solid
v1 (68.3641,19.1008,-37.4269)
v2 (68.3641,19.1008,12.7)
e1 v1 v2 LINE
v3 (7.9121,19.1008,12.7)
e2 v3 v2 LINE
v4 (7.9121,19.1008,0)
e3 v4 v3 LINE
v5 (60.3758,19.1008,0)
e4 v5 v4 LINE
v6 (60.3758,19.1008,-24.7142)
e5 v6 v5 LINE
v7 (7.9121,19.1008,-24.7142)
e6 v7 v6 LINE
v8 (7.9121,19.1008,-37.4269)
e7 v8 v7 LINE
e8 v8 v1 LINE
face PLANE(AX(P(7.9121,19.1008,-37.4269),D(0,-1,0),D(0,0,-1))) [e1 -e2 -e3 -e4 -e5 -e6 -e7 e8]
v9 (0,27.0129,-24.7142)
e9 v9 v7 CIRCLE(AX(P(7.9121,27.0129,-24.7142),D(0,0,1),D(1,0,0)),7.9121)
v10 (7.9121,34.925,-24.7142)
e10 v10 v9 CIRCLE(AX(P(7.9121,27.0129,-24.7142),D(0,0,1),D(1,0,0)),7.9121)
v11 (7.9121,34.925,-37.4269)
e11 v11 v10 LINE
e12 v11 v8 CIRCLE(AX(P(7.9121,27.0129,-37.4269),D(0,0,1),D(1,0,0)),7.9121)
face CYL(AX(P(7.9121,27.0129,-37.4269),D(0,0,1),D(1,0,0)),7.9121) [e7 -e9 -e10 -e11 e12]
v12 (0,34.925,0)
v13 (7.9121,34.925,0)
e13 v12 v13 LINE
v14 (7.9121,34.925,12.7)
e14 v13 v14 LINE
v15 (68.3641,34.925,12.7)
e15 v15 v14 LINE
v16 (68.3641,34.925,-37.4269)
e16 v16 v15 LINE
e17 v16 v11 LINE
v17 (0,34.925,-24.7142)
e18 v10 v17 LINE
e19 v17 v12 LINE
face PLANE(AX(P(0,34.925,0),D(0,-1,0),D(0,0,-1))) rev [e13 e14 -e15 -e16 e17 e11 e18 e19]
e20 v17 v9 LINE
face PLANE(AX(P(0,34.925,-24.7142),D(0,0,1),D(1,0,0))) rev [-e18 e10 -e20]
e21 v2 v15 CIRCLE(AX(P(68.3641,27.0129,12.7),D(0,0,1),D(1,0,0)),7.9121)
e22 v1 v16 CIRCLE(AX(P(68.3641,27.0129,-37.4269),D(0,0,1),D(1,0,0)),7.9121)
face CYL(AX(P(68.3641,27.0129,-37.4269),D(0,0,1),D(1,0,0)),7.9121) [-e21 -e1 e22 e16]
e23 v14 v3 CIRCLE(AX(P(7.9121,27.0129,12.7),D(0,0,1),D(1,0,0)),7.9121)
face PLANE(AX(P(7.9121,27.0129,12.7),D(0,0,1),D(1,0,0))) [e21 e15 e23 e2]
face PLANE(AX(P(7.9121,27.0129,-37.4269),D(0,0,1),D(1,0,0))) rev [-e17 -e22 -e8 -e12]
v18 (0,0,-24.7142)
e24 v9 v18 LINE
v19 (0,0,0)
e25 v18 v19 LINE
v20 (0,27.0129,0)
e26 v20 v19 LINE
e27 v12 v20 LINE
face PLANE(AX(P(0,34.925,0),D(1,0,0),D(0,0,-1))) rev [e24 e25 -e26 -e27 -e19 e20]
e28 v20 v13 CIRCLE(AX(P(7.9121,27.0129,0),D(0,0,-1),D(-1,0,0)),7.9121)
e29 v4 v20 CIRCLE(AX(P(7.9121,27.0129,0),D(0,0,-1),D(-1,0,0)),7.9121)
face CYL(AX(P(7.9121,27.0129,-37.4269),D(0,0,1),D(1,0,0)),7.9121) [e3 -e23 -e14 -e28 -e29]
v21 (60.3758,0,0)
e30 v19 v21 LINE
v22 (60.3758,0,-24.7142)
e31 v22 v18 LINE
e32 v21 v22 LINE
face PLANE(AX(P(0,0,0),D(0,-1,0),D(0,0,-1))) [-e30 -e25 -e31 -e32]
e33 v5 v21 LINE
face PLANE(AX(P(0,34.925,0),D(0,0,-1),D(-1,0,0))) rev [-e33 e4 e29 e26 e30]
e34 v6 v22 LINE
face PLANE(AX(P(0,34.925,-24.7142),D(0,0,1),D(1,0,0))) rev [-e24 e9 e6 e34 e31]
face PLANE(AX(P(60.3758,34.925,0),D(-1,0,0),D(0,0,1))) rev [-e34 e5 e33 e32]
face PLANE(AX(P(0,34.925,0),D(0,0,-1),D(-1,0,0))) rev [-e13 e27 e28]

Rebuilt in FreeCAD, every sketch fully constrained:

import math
import FreeCAD as App
import Part
import Sketcher
from FreeCAD import Vector
Q = App.Units.Quantity


def add_polygon(sketch, points):
    """Adds a closed chain of lines whose ends are joined by coincident constraints."""
    first, n = sketch.GeometryCount, len(points)
    for a, b in zip(points, points[1:] + points[:1]):
        sketch.addGeometry(Part.LineSegment(App.Vector(*a, 0), App.Vector(*b, 0)), False)
    for i in range(n):
        sketch.addConstraint(Sketcher.Constraint("Coincident", first + i, 2, first + (i + 1) % n, 1))

doc = App.newDocument("Part")
params = doc.addObject("Spreadsheet::Sheet", "Params")
for row, (alias, value) in enumerate([
    ("sketch1_width", "2.377 in"),
    ("sketch1_height", "0.973 in"),
    ("pad1_length", "1.375 in"),
    ("sketch2_width", "2.38 in"),
    ("pad2_length", "0.5 in"),
    ("pad2_length2", "1.4735 in"),
], start=1):
    params.set(f"A{row}", alias)
    params.set(f"B{row}", "=" + value)
    params.setAlias(f"B{row}", alias)

body = doc.addObject("PartDesign::Body", "Body")

# Sketch on XZ plane
sketch1 = body.newObject("Sketcher::SketchObject", "Sketch")
sketch1.AttachmentSupport = (doc.getObject("XZ_Plane"), [""])
sketch1.MapMode = "FlatFace"
add_polygon(sketch1, [(0, -24.7142), (0, 0), (60.3758, 0), (60.3758, -24.7142)])  # lines 0-3
sketch1.addConstraint(Sketcher.Constraint("Vertical", 0))
sketch1.addConstraint(Sketcher.Constraint("Horizontal", 1))
sketch1.addConstraint(Sketcher.Constraint("Vertical", 2))
sketch1.addConstraint(Sketcher.Constraint("Horizontal", 3))
sketch1.addConstraint(Sketcher.Constraint("Coincident", 0, 2, -1, 1))
sketch1.addConstraint(Sketcher.Constraint("DistanceX", 1, 1, 1, 2, Q("2.377 in")))
sketch1.addConstraint(Sketcher.Constraint("DistanceY", 0, 1, 0, 2, Q("0.973 in")))
sketch1.setExpression("Constraints[9]", "Params.sketch1_width")
sketch1.setExpression("Constraints[10]", "Params.sketch1_height")
pad1 = body.newObject("PartDesign::Pad", "Pad")
pad1.Profile = sketch1
pad1.setExpression("Length", "Params.pad1_length")
pad1.Reversed = True

# Sketch on XY plane
sketch2 = body.newObject("Sketcher::SketchObject", "Sketch001")
sketch2.AttachmentSupport = (doc.getObject("XY_Plane"), [""])
sketch2.MapMode = "FlatFace"
sketch2.addGeometry(Part.LineSegment(Vector(68.3641, 34.925, 0), Vector(7.9121, 34.925, 0)), False)
sketch2.addGeometry(Part.ArcOfCircle(Part.Circle(Vector(7.9121, 27.0129, 0), Vector(0, 0, 1), 7.9121), math.radians(90), math.radians(270)), False)
sketch2.addGeometry(Part.LineSegment(Vector(7.9121, 19.1008, 0), Vector(68.3641, 19.1008, 0)), False)
sketch2.addGeometry(Part.ArcOfCircle(Part.Circle(Vector(68.3641, 27.0129, 0), Vector(0, 0, 1), 7.9121), math.radians(-90), math.radians(90)), False)
sketch2.addConstraint(Sketcher.Constraint("Tangent", 0, 2, 1, 1))
sketch2.addConstraint(Sketcher.Constraint("Tangent", 1, 2, 2, 1))
sketch2.addConstraint(Sketcher.Constraint("Tangent", 2, 2, 3, 1))
sketch2.addConstraint(Sketcher.Constraint("Tangent", 3, 2, 0, 1))
sketch2.addConstraint(Sketcher.Constraint("Horizontal", 0))
sketch2.addConstraint(Sketcher.Constraint("Horizontal", 2))
sketch2.addConstraint(Sketcher.Constraint("DistanceX", 0, 2, 0, 1, Q("2.38 in")))
sketch2.addConstraint(Sketcher.Constraint("Radius", 1, Q("0.3115 in")))
sketch2.addConstraint(Sketcher.Constraint("DistanceY", -1, 1, 0, 2, Q("1.375 in")))
sketch2.addConstraint(Sketcher.Constraint("DistanceX", -1, 1, 1, 3, Q("0.3115 in")))
sketch2.setExpression("Constraints[6]", "Params.sketch2_width")
pad2 = body.newObject("PartDesign::Pad", "Pad001")
pad2.Profile = sketch2
pad2.Type = "TwoLengths"
pad2.setExpression("Length", "Params.pad2_length")
pad2.setExpression("Length2", "Params.pad2_length2")

doc.recompute()
